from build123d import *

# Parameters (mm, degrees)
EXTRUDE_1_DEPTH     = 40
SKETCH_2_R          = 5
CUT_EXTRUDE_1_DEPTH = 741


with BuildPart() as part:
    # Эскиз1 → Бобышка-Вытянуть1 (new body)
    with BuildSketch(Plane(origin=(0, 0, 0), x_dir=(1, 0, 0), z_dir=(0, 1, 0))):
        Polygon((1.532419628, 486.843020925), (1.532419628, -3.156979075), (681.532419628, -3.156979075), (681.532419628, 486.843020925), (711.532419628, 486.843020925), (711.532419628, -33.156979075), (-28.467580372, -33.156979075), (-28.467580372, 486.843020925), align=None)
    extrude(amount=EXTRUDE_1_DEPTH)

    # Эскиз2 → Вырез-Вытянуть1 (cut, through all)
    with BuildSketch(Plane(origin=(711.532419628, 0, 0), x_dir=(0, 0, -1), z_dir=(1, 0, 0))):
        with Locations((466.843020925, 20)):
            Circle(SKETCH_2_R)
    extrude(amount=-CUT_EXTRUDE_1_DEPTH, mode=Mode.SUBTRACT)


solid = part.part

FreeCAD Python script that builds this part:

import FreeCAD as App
import Part
import Sketcher

V = App.Vector
Q = App.Units.Quantity


def add_polygon(sketch, points):
    """Adds a closed chain of lines whose ends are joined by coincident constraints."""
    first, n = sketch.GeometryCount, len(points)
    for a, b in zip(points, points[1:] + points[:1]):
        sketch.addGeometry(Part.LineSegment(App.Vector(*a, 0), App.Vector(*b, 0)), False)
    for i in range(n):
        sketch.addConstraint(Sketcher.Constraint("Coincident", first + i, 2, first + (i + 1) % n, 1))

doc = App.newDocument("Part")
body = doc.addObject("PartDesign::Body", "Body")

# Sketch on XZ plane
sketch1 = body.newObject("Sketcher::SketchObject", "Sketch")
sketch1.AttachmentSupport = (doc.getObject("XZ_Plane"), [""])
sketch1.MapMode = "FlatFace"
add_polygon(sketch1, [(2, 3), (2, -487), (-28, -487), (-28, 33), (712, 33), (712, -487), (682, -487), (682, 3)])  # lines 0-7
sketch1.addConstraint([
    Sketcher.Constraint("Vertical", 0),
    Sketcher.Constraint("Horizontal", 1),
    Sketcher.Constraint("Vertical", 2),
    Sketcher.Constraint("Horizontal", 3),
    Sketcher.Constraint("Vertical", 4),
    Sketcher.Constraint("Horizontal", 5),
    Sketcher.Constraint("Vertical", 6),
    Sketcher.Constraint("Horizontal", 7),
    Sketcher.Constraint("Horizontal", 1, 2, 4, 2),
    Sketcher.Constraint("Equal", 1, 5),
    Sketcher.Constraint("DistanceX", 1, 2, 1, 1, Q("30 mm")),
    Sketcher.Constraint("DistanceX", 3, 1, 3, 2, Q("740 mm")),
    Sketcher.Constraint("DistanceY", 0, 2, 0, 1, Q("490 mm")),
    Sketcher.Constraint("DistanceY", 2, 1, 2, 2, Q("520 mm")),
    Sketcher.Constraint("DistanceX", -1, 1, 0, 2, Q("1.53242 mm")),
    Sketcher.Constraint("DistanceY", 0, 2, -1, 1, Q("486.843021 mm")),
])
pad1 = body.newObject("PartDesign::Pad", "Pad")
pad1.Profile = sketch1
pad1.Length = 40
pad1.Reversed = True

# Sketch on YZ plane
sketch2 = body.newObject("Sketcher::SketchObject", "Sketch001")
sketch2.AttachmentSupport = (doc.getObject("YZ_Plane"), [""])
sketch2.MapMode = "FlatFace"
sketch2.AttachmentOffset = App.Placement(V(0, 0, 711.53242), App.Rotation())
sketch2.addGeometry(Part.Circle(V(20, -467, 0), V(0, 0, 1), 5), False)
sketch2.addConstraint([
    Sketcher.Constraint("Diameter", 0, Q("10 mm")),
    Sketcher.Constraint("DistanceX", -1, 1, 0, 3, Q("20 mm")),
    Sketcher.Constraint("DistanceY", 0, 3, -1, 1, Q("466.843021 mm")),
])
pocket1 = body.newObject("PartDesign::Pocket", "Pocket")
pocket1.Profile = sketch2
pocket1.Type = "ThroughAll"

doc.recompute()
